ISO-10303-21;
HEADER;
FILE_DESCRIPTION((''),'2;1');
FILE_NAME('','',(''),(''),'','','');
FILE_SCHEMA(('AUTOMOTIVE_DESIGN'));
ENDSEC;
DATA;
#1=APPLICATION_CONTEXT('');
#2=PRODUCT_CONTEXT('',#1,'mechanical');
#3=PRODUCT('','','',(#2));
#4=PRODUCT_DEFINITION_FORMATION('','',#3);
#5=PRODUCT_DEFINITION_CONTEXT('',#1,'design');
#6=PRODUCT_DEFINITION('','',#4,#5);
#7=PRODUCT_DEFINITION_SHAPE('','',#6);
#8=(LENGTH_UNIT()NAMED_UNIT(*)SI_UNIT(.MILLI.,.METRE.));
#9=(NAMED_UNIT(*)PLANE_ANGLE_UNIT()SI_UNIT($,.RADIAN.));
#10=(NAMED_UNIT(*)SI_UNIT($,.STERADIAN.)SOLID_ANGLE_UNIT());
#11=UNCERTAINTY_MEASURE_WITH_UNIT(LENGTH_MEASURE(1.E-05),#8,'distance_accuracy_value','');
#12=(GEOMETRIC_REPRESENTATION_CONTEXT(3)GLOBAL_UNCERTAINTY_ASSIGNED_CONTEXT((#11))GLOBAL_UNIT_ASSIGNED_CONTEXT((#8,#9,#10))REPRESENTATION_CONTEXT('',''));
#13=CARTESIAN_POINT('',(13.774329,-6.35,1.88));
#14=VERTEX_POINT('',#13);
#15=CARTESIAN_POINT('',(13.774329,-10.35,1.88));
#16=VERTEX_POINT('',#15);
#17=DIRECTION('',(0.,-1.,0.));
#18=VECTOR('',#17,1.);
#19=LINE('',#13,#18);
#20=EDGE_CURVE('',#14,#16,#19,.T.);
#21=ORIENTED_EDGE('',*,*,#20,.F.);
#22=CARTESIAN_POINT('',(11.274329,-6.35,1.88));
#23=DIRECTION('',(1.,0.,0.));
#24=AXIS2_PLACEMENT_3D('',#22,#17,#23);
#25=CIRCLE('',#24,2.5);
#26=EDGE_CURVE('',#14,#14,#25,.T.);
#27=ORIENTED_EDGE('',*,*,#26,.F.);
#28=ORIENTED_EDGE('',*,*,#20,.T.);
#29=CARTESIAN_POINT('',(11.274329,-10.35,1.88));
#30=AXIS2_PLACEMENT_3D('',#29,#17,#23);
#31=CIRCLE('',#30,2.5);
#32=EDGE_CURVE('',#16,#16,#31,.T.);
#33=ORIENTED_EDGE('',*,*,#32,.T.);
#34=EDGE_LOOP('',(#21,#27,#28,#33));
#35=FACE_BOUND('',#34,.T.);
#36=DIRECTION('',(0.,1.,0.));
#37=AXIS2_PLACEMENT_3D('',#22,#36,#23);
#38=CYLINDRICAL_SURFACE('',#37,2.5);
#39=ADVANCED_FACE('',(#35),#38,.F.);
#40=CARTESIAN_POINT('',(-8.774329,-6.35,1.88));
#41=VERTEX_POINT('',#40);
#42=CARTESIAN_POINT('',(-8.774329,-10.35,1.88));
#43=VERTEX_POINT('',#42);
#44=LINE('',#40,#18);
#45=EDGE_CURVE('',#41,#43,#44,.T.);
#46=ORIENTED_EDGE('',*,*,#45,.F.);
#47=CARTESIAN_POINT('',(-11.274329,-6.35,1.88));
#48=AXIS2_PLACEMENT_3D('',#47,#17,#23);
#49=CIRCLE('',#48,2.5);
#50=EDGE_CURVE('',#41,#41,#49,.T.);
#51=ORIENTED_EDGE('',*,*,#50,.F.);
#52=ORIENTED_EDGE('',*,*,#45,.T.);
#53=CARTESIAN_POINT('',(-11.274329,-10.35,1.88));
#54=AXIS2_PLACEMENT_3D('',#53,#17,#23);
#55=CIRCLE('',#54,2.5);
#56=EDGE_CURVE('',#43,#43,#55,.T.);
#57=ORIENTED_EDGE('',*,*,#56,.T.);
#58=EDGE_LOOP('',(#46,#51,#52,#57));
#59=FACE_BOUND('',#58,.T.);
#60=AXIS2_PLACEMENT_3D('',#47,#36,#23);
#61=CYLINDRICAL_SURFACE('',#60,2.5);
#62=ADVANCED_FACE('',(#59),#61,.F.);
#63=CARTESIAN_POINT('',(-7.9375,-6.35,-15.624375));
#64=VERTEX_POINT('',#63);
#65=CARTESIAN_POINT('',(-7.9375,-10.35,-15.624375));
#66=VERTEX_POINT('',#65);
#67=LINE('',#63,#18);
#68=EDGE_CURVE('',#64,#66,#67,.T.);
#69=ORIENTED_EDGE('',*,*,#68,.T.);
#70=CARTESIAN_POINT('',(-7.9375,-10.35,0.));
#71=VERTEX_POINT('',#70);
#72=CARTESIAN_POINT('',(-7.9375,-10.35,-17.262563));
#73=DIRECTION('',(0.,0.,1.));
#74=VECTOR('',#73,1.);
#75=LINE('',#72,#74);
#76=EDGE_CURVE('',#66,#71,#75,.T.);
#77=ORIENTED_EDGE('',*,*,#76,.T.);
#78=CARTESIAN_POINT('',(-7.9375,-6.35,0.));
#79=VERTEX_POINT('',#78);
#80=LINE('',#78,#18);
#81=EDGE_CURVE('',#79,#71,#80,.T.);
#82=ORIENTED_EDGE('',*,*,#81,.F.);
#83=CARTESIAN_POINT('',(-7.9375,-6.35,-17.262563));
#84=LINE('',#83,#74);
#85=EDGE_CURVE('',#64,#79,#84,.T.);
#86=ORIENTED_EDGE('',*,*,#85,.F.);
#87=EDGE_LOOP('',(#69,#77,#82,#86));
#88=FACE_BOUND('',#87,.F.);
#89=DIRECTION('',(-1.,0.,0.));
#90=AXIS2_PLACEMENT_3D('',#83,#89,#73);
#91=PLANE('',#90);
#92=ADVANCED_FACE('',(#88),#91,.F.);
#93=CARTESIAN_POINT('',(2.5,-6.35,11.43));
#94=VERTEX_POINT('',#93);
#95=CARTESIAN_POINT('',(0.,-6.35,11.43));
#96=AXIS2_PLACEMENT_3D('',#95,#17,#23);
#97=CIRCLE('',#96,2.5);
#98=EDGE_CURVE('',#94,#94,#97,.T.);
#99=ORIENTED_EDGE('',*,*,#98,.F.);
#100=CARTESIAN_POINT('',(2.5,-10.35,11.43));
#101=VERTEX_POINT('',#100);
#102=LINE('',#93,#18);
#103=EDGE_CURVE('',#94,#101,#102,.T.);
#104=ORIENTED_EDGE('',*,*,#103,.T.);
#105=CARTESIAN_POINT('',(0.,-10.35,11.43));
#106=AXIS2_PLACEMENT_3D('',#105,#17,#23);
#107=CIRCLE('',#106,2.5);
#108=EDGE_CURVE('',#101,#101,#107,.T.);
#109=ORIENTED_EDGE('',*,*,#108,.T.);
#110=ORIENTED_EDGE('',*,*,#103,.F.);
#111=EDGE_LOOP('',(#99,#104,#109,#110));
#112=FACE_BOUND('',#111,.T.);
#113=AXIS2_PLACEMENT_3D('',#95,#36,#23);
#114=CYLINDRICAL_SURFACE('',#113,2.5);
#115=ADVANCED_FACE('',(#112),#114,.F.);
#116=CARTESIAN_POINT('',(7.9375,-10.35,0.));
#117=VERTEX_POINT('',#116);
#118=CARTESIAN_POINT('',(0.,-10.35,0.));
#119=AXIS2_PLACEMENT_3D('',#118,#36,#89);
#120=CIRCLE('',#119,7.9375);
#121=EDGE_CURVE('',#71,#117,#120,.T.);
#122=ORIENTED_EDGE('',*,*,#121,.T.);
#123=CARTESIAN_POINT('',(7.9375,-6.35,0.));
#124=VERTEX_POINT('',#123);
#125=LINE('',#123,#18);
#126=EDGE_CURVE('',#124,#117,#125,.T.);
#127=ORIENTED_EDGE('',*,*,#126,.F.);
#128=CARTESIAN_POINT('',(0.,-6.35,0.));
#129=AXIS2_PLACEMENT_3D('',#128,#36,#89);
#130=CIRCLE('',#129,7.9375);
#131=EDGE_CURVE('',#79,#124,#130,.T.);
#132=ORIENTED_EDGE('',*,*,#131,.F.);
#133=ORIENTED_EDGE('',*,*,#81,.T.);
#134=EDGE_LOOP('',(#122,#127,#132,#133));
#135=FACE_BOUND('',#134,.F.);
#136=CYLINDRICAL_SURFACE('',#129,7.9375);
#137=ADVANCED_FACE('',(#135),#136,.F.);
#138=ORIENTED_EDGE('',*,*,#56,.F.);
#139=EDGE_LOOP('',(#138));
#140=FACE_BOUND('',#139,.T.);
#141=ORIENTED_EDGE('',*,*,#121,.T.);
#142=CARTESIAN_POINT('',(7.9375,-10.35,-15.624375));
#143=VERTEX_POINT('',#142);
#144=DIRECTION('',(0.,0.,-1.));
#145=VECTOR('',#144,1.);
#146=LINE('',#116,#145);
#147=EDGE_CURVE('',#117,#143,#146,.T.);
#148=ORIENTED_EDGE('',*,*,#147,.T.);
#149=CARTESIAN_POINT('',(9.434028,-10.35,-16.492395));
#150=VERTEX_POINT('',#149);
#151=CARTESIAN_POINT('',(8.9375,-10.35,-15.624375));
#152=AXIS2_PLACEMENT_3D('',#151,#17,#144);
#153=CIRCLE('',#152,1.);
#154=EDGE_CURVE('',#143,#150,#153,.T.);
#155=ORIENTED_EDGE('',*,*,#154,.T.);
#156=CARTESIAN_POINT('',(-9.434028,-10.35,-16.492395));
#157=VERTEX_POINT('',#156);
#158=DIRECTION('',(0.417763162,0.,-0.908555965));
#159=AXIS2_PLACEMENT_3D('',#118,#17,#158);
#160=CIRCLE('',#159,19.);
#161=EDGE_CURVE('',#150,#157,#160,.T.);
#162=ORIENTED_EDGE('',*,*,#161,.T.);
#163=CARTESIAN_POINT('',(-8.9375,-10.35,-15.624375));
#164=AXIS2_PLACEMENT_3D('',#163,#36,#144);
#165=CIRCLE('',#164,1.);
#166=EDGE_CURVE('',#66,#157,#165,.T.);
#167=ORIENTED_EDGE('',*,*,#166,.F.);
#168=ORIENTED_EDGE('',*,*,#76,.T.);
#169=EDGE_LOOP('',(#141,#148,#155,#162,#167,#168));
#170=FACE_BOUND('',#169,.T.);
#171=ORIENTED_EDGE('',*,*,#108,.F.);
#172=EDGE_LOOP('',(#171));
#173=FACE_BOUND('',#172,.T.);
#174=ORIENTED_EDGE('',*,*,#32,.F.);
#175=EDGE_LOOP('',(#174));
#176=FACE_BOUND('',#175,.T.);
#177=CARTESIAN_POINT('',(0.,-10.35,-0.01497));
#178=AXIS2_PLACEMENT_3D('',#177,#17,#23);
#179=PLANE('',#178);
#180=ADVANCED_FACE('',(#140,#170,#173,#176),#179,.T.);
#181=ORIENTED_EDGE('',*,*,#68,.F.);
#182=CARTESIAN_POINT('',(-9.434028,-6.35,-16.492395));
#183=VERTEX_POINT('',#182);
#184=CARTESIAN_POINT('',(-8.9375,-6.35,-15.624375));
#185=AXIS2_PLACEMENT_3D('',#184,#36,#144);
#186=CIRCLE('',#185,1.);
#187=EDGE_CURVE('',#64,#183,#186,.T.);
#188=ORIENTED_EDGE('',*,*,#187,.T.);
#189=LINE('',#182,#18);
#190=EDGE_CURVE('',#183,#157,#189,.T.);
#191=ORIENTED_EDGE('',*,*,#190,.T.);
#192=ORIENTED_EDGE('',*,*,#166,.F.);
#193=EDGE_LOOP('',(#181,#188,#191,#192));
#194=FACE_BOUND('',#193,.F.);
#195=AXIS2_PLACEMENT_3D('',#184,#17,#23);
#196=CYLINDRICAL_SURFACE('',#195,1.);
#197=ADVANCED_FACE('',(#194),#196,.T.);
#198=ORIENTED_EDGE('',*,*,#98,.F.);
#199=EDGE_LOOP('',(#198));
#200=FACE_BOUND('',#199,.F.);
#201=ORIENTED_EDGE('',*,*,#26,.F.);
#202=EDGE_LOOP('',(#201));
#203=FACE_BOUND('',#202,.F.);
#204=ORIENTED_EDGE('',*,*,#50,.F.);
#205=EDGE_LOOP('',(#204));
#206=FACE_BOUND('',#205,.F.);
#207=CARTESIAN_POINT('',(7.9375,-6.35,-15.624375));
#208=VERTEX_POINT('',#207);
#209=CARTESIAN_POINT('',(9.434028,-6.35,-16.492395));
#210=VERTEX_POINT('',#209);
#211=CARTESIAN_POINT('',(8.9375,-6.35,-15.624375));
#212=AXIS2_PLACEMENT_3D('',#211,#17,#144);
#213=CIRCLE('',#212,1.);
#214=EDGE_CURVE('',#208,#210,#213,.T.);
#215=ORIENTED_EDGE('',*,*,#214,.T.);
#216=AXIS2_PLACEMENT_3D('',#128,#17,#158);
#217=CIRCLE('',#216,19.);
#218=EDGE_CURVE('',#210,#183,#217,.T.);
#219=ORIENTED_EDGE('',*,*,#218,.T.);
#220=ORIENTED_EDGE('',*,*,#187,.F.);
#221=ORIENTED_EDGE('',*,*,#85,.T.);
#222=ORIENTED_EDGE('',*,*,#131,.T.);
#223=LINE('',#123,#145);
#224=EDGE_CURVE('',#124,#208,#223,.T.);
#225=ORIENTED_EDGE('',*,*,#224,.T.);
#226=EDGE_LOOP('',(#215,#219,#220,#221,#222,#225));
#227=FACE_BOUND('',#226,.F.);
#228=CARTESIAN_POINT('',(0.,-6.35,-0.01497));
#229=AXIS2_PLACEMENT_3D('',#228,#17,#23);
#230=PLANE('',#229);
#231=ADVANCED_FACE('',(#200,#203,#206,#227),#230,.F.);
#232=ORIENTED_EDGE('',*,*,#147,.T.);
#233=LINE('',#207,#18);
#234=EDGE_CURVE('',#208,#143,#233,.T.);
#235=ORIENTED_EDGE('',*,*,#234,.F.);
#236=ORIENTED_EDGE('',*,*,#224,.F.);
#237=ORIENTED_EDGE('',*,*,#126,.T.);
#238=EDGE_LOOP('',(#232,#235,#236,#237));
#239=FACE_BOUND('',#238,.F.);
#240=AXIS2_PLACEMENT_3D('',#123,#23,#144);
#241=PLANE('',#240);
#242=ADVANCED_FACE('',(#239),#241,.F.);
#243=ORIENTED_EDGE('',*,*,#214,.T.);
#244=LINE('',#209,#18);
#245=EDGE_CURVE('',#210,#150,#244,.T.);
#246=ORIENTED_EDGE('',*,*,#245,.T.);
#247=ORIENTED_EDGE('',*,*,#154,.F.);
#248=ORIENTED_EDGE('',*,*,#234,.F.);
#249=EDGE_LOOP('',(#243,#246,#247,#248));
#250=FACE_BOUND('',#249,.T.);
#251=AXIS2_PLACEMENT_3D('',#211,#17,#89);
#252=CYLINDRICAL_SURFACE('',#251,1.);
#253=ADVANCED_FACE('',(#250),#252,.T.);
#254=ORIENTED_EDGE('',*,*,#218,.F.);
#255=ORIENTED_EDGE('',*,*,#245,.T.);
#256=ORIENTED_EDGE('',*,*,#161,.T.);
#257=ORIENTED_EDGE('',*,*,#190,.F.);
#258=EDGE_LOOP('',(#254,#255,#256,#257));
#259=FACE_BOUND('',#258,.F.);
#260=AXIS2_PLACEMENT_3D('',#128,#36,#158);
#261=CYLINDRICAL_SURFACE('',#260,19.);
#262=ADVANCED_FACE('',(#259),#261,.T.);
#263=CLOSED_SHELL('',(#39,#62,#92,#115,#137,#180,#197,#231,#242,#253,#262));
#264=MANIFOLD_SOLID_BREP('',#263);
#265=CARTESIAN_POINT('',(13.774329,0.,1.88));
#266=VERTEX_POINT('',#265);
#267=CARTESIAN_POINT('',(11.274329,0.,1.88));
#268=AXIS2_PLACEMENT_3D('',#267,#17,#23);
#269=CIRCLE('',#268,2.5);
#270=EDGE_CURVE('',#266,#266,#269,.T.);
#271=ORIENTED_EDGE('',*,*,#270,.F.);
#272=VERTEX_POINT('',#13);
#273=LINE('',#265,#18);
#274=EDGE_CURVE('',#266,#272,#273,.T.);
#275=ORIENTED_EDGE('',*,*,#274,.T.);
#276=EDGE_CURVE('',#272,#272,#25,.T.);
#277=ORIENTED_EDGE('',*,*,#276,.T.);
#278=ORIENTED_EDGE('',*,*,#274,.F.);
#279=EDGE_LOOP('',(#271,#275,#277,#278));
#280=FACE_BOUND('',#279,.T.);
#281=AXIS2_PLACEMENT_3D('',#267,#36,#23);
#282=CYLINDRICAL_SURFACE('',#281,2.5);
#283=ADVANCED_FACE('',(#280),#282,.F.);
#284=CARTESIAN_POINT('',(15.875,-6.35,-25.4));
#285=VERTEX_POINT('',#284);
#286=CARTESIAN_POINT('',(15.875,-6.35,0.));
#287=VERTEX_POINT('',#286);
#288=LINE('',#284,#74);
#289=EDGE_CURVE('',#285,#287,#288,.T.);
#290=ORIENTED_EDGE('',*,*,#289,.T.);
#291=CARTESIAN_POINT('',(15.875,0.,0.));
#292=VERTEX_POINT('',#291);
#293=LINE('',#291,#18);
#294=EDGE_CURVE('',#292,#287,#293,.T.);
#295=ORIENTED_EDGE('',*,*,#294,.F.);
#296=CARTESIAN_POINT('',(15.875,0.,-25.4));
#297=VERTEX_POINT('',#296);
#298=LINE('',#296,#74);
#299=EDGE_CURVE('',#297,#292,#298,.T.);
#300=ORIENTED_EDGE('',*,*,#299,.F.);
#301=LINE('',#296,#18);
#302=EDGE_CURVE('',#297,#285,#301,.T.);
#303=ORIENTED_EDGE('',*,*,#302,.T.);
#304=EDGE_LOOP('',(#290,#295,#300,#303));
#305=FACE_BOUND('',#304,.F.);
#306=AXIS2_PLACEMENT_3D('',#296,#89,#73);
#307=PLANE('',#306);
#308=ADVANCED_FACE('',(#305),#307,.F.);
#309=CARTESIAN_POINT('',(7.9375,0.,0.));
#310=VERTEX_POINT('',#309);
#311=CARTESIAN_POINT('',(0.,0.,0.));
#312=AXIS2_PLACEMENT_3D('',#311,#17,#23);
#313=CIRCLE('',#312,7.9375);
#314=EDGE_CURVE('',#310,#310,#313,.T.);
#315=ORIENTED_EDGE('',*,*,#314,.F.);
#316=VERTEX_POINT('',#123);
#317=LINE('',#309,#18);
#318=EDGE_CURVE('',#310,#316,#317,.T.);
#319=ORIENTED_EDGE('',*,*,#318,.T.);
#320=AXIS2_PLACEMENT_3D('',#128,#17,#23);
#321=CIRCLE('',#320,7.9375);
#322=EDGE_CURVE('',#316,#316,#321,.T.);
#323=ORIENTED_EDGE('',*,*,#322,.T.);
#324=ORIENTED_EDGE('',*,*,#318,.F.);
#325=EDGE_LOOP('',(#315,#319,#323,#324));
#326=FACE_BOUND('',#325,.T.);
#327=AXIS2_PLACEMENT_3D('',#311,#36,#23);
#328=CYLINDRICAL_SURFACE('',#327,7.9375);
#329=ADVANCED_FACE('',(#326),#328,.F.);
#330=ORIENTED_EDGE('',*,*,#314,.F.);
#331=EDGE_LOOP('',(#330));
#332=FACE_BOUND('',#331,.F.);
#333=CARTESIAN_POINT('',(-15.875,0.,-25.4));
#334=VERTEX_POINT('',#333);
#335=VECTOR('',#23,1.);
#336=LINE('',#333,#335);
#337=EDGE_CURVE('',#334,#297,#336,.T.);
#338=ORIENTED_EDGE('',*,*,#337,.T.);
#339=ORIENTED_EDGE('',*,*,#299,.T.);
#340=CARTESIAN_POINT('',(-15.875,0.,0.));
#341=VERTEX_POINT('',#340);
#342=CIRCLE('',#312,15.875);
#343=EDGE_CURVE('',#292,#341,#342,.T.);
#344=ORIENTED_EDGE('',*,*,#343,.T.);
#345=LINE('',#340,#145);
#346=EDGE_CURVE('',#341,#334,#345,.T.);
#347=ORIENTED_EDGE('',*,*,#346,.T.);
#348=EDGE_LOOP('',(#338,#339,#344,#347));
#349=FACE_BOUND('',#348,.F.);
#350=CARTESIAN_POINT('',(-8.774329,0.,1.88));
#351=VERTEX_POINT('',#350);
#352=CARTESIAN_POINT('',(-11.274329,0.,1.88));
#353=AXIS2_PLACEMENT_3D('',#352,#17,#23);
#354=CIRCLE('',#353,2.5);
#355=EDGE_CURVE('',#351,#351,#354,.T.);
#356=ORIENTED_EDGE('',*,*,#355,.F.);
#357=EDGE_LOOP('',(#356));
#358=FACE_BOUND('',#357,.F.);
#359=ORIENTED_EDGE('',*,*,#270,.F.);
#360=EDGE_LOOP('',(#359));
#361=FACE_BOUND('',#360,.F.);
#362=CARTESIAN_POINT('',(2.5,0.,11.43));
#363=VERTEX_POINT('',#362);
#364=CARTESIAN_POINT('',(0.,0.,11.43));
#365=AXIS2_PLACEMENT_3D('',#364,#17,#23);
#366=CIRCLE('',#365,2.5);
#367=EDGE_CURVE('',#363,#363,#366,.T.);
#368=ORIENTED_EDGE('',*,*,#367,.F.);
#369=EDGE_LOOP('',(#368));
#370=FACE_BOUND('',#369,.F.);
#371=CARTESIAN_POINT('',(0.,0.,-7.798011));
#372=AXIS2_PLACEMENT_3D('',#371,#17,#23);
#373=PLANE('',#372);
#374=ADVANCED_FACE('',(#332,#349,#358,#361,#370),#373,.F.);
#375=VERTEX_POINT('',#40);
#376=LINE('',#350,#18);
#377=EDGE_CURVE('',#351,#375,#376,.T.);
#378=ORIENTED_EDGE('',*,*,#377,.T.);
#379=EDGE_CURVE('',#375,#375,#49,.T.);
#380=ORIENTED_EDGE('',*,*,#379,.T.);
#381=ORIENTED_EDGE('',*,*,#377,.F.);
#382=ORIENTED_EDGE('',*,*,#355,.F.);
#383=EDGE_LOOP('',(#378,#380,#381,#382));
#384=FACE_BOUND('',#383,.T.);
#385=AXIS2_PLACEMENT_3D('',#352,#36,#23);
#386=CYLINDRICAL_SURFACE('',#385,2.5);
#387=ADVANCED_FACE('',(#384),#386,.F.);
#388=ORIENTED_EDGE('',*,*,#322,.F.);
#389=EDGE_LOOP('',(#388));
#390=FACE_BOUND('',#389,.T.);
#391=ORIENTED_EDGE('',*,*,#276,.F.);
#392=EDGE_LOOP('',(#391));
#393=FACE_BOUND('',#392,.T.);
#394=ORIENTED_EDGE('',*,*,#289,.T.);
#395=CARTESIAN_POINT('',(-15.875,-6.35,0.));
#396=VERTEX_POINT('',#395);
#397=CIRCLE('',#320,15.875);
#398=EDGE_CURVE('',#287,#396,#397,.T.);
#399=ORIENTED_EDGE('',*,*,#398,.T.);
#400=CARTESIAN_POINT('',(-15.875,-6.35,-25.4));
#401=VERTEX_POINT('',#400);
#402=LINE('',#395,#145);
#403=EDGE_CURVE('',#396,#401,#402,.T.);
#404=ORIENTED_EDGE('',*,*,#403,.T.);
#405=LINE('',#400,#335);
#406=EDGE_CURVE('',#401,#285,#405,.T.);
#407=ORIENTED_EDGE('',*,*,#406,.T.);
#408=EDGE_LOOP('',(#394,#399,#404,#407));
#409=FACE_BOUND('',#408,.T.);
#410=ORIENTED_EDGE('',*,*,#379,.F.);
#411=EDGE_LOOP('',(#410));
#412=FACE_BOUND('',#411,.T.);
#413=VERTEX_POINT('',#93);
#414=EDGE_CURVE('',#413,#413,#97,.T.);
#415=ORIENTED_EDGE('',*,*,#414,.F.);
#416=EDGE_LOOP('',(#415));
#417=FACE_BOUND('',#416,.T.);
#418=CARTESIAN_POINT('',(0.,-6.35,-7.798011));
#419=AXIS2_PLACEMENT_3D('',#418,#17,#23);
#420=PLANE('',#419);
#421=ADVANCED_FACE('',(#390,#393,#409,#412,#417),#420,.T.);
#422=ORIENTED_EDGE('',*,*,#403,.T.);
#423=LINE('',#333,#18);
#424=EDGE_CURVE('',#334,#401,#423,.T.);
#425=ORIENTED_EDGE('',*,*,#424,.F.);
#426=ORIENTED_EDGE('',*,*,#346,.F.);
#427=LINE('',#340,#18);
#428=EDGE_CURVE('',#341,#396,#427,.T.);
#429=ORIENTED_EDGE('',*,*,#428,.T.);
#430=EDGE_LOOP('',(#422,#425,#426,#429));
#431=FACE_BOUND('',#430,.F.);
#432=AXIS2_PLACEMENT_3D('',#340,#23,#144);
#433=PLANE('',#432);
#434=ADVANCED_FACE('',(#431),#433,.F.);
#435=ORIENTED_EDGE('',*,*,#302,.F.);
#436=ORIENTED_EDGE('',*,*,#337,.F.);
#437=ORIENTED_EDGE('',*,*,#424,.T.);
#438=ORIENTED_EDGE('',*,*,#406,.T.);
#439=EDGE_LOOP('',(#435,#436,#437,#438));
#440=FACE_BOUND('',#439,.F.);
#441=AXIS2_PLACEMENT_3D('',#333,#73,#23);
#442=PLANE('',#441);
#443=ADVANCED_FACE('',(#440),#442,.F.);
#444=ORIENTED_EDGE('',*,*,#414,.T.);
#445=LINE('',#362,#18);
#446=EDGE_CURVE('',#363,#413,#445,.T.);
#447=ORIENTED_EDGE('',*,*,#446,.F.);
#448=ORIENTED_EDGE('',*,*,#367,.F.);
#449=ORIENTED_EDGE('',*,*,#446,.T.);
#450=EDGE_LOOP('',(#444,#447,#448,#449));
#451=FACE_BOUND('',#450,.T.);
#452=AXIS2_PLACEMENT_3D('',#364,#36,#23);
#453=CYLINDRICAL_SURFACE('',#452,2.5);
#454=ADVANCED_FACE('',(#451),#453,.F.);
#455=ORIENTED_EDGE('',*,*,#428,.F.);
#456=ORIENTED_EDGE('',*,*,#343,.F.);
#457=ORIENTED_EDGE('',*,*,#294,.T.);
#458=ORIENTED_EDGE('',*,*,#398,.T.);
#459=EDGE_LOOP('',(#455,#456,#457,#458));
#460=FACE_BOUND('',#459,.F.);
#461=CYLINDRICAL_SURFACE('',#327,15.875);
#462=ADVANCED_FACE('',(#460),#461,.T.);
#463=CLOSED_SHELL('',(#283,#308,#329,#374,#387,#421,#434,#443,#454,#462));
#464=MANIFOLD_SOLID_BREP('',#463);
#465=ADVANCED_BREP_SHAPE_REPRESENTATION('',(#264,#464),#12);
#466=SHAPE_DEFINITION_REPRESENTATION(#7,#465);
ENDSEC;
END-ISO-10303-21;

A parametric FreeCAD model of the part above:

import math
import FreeCAD as App
import Part
import Sketcher

V = App.Vector
Q = App.Units.Quantity


def edges_at(feature, points):
    """Names of the edges that pass closest to the given points."""
    edges = feature.Shape.Edges
    near = lambda p: min(range(len(edges)), key=lambda i: edges[i].distToShape(Part.Vertex(*p))[0])
    return sorted({f"Edge{near(p) + 1}" for p in points})

doc = App.newDocument("Part")
body = doc.addObject("PartDesign::Body", "Body")

sketch1 = body.newObject("Sketcher::SketchObject", "Sketch")
sketch1.AttachmentSupport = (doc.getObject("XZ_Plane"), [""])
sketch1.MapMode = "FlatFace"
sketch1.addGeometry([
    Part.LineSegment(V(15.9, -25.4, 0), V(15.9, 0, 0)),
    Part.ArcOfCircle(Part.Circle(V(0, 0, 0), V(0, 0, 1), 15.9), math.radians(0), math.radians(180)),
    Part.LineSegment(V(-15.9, 0, 0), V(-15.9, -25.4, 0)),
    Part.LineSegment(V(-15.9, -25.4, 0), V(15.9, -25.4, 0)),
    Part.Circle(V(-11.3, 1.9, 0), V(0, 0, 1), 2.5),
    Part.Circle(V(0, 0, 0), V(0, 0, 1), 7.9),
    Part.Circle(V(11.3, 1.9, 0), V(0, 0, 1), 2.5),
    Part.Circle(V(0, 11.4, 0), V(0, 0, 1), 2.5),
], False)
sketch1.addConstraint([
    Sketcher.Constraint("Tangent", 0, 2, 1, 1),
    Sketcher.Constraint("Tangent", 1, 2, 2, 1),
    Sketcher.Constraint("Coincident", 2, 2, 3, 1),
    Sketcher.Constraint("Coincident", 3, 2, 0, 1),
    Sketcher.Constraint("Vertical", 0),
    Sketcher.Constraint("Vertical", 2),
    Sketcher.Constraint("Horizontal", 3),
    Sketcher.Constraint("Coincident", 1, 3, -1, 1),
    Sketcher.Constraint("Coincident", 5, 3, -1, 1),
    Sketcher.Constraint("Equal", 4, 6),
    Sketcher.Constraint("Equal", 6, 7),
    Sketcher.Constraint("Symmetric", 4, 3, 6, 3, -2),
    Sketcher.Constraint("PointOnObject", 7, 3, -2),
    Sketcher.Constraint("Diameter", 4, Q("5 mm")),
    Sketcher.Constraint("Diameter", 5, Q("15.875 mm")),
    Sketcher.Constraint("DistanceY", 0, 1, 0, 2, Q("25.4 mm")),
    Sketcher.Constraint("Radius", 1, Q("15.875 mm")),
    Sketcher.Constraint("DistanceY", -1, 1, 4, 3, Q("1.88 mm")),
    Sketcher.Constraint("DistanceY", -1, 1, 7, 3, Q("11.43 mm")),
    Sketcher.Constraint("DistanceX", 4, 3, -1, 1, Q("11.274329 mm")),
])
pad1 = body.newObject("PartDesign::Pad", "Pad")
pad1.Profile = sketch1
pad1.Length = 6.35
body2 = doc.addObject("PartDesign::Body", "Body001")

sketch2 = body2.newObject("Sketcher::SketchObject", "Sketch001")
sketch2.AttachmentSupport = (doc.getObject("XZ_Plane001"), [""])
sketch2.MapMode = "FlatFace"
sketch2.AttachmentOffset = App.Placement(V(0, 0, 6.35), App.Rotation())
sketch2.addGeometry([
    Part.ArcOfCircle(Part.Circle(V(0, 0, 0), V(0, 0, 1), 7.9), math.radians(0), math.radians(180)),
    Part.LineSegment(V(7.9, 0, 0), V(7.9, -17.3, 0)),
    Part.ArcOfCircle(Part.Circle(V(0, 0, 0), V(0, 0, 1), 19), math.radians(-65), math.radians(245)),
    Part.LineSegment(V(-7.9, -17.3, 0), V(-7.9, 0, 0)),
    Part.Circle(V(-11.3, 1.9, 0), V(0, 0, 1), 2.5),
    Part.Circle(V(11.3, 1.9, 0), V(0, 0, 1), 2.5),
    Part.Circle(V(0, 11.4, 0), V(0, 0, 1), 2.5),
], False)
sketch2.addConstraint([
    Sketcher.Constraint("Tangent", 0, 1, 1, 1),
    Sketcher.Constraint("Coincident", 1, 2, 2, 1),
    Sketcher.Constraint("Coincident", 2, 2, 3, 1),
    Sketcher.Constraint("Tangent", 3, 2, 0, 2),
    Sketcher.Constraint("Vertical", 1),
    Sketcher.Constraint("Vertical", 3),
    Sketcher.Constraint("Coincident", 0, 3, -1, 1),
    Sketcher.Constraint("Coincident", 2, 3, -1, 1),
    Sketcher.Constraint("Equal", 4, 5),
    Sketcher.Constraint("Equal", 5, 6),
    Sketcher.Constraint("Symmetric", 4, 3, 5, 3, -2),
    Sketcher.Constraint("PointOnObject", 6, 3, -2),
    Sketcher.Constraint("Diameter", 4, Q("5 mm")),
    Sketcher.Constraint("Radius", 2, Q("19 mm")),
    Sketcher.Constraint("Radius", 0, Q("7.9375 mm")),
    Sketcher.Constraint("DistanceY", -1, 1, 4, 3, Q("1.88 mm")),
    Sketcher.Constraint("DistanceY", -1, 1, 6, 3, Q("11.43 mm")),
    Sketcher.Constraint("DistanceX", 4, 3, -1, 1, Q("11.274329 mm")),
])
pad2 = body2.newObject("PartDesign::Pad", "Pad001")
pad2.Profile = sketch2
pad2.Length = 4
doc.recompute()

fillet = body2.newObject("PartDesign::Fillet", "Fillet")
fillet.Base = (pad2, edges_at(pad2, [(7.938, -8.35, -17.263), (-7.938, -8.35, -17.263)]))
fillet.Radius = 1

doc.recompute()
